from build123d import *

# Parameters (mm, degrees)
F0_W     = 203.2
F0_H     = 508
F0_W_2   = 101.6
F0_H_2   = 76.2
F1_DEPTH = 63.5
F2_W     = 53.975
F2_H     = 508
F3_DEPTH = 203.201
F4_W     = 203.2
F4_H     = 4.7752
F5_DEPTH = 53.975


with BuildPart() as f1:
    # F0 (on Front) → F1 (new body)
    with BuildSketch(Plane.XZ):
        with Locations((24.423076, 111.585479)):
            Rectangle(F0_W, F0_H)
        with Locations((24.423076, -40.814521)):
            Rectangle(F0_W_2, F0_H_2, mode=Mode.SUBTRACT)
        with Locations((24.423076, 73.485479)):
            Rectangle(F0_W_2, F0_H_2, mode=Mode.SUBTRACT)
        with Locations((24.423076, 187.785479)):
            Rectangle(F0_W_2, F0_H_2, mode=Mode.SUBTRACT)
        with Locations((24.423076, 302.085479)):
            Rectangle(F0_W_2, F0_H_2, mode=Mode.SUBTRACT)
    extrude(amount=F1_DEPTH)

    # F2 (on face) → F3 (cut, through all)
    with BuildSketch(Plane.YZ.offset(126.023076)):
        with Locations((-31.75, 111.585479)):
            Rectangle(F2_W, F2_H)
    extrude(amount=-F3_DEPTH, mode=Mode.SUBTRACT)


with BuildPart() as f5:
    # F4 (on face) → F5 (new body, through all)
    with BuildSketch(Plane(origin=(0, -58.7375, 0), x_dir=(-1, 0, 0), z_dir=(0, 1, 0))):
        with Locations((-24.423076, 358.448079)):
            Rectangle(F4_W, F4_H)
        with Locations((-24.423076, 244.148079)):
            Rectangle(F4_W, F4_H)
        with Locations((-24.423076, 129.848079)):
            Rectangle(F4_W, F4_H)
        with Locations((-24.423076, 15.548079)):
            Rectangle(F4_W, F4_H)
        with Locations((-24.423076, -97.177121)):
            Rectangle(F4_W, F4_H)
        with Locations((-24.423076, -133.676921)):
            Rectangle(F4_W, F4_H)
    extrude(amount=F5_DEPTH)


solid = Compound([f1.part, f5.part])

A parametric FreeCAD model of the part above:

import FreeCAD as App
import Part
import Sketcher

V = App.Vector
Q = App.Units.Quantity

doc = App.newDocument("Part")
body = doc.addObject("PartDesign::Body", "Body")
body.AllowCompound = True

# Sketch on XZ plane
sketch1 = doc.addObject("Sketcher::SketchObject", "Sketch")
body.addObject(sketch1)
sketch1.AttachmentSupport = (doc.XZ_Plane, [""])
sketch1.MapMode = "FlatFace"
sketch1.addGeometry([
    Part.LineSegment(V(-77.176924, 365.585479, 0), V(-77.176924, -142.414521, 0)),  # 0
    Part.LineSegment(V(-77.176924, -142.414521, 0), V(126.023076, -142.414521, 0)),  # 1
    Part.LineSegment(V(126.023076, -142.414521, 0), V(126.023076, 365.585479, 0)),  # 2
    Part.LineSegment(V(126.023076, 365.585479, 0), V(-77.176924, 365.585479, 0)),  # 3
    Part.LineSegment(V(75.223076, -78.914521, 0), V(-26.376924, -78.914521, 0)),  # 4
    Part.LineSegment(V(-26.376924, -78.914521, 0), V(-26.376924, -2.714521, 0)),  # 5
    Part.LineSegment(V(-26.376924, -2.714521, 0), V(75.223076, -2.714521, 0)),  # 6
    Part.LineSegment(V(75.223076, -2.714521, 0), V(75.223076, -78.914521, 0)),  # 7
    Part.LineSegment(V(75.223076, 35.385479, 0), V(-26.376924, 35.385479, 0)),  # 8
    Part.LineSegment(V(-26.376924, 35.385479, 0), V(-26.376924, 111.585479, 0)),  # 9
    Part.LineSegment(V(-26.376924, 111.585479, 0), V(75.223076, 111.585479, 0)),  # 10
    Part.LineSegment(V(75.223076, 111.585479, 0), V(75.223076, 35.385479, 0)),  # 11
    Part.LineSegment(V(75.223076, 149.685479, 0), V(-26.376924, 149.685479, 0)),  # 12
    Part.LineSegment(V(-26.376924, 149.685479, 0), V(-26.376924, 225.885479, 0)),  # 13
    Part.LineSegment(V(-26.376924, 225.885479, 0), V(75.223076, 225.885479, 0)),  # 14
    Part.LineSegment(V(75.223076, 225.885479, 0), V(75.223076, 149.685479, 0)),  # 15
    Part.LineSegment(V(75.223076, 263.985479, 0), V(-26.376924, 263.985479, 0)),  # 16
    Part.LineSegment(V(-26.376924, 263.985479, 0), V(-26.376924, 340.185479, 0)),  # 17
    Part.LineSegment(V(-26.376924, 340.185479, 0), V(75.223076, 340.185479, 0)),  # 18
    Part.LineSegment(V(75.223076, 340.185479, 0), V(75.223076, 263.985479, 0)),  # 19
], False)
sketch1.addConstraint([
    Sketcher.Constraint("Coincident", 0, 2, 1, 1),
    Sketcher.Constraint("Coincident", 1, 2, 2, 1),
    Sketcher.Constraint("Coincident", 2, 2, 3, 1),
    Sketcher.Constraint("Coincident", 3, 2, 0, 1),
    Sketcher.Constraint("Coincident", 4, 2, 5, 1),
    Sketcher.Constraint("Coincident", 5, 2, 6, 1),
    Sketcher.Constraint("Coincident", 6, 2, 7, 1),
    Sketcher.Constraint("Coincident", 7, 2, 4, 1),
    Sketcher.Constraint("Coincident", 8, 2, 9, 1),
    Sketcher.Constraint("Coincident", 9, 2, 10, 1),
    Sketcher.Constraint("Coincident", 10, 2, 11, 1),
    Sketcher.Constraint("Coincident", 11, 2, 8, 1),
    Sketcher.Constraint("Coincident", 12, 2, 13, 1),
    Sketcher.Constraint("Coincident", 13, 2, 14, 1),
    Sketcher.Constraint("Coincident", 14, 2, 15, 1),
    Sketcher.Constraint("Coincident", 15, 2, 12, 1),
    Sketcher.Constraint("Coincident", 16, 2, 17, 1),
    Sketcher.Constraint("Coincident", 17, 2, 18, 1),
    Sketcher.Constraint("Coincident", 18, 2, 19, 1),
    Sketcher.Constraint("Coincident", 19, 2, 16, 1),
    Sketcher.Constraint("Vertical", 0),
    Sketcher.Constraint("Horizontal", 1),
    Sketcher.Constraint("Vertical", 2),
    Sketcher.Constraint("Horizontal", 3),
    Sketcher.Constraint("Horizontal", 4),
    Sketcher.Constraint("Vertical", 5),
    Sketcher.Constraint("Horizontal", 6),
    Sketcher.Constraint("Vertical", 7),
    Sketcher.Constraint("Horizontal", 8),
    Sketcher.Constraint("Vertical", 9),
    Sketcher.Constraint("Horizontal", 10),
    Sketcher.Constraint("Vertical", 11),
    Sketcher.Constraint("Horizontal", 12),
    Sketcher.Constraint("Vertical", 13),
    Sketcher.Constraint("Horizontal", 14),
    Sketcher.Constraint("Vertical", 15),
    Sketcher.Constraint("Horizontal", 16),
    Sketcher.Constraint("Vertical", 17),
    Sketcher.Constraint("Horizontal", 18),
    Sketcher.Constraint("Vertical", 19),
    Sketcher.Constraint("Vertical", 5, 2, 8, 2),
    Sketcher.Constraint("Vertical", 7, 2, 10, 2),
    Sketcher.Constraint("Vertical", 9, 2, 12, 2),
    Sketcher.Constraint("Vertical", 11, 2, 14, 2),
    Sketcher.Constraint("Vertical", 13, 2, 16, 2),
    Sketcher.Constraint("Vertical", 15, 2, 18, 2),
    Sketcher.Constraint("Equal", 7, 9),
    Sketcher.Constraint("Equal", 11, 13),
    Sketcher.Constraint("Equal", 15, 17),
    Sketcher.Constraint("DistanceX", 1, 1, 1, 2, Q("8 in")),
    Sketcher.Constraint("DistanceX", 4, 2, 4, 1, Q("4 in")),
    Sketcher.Constraint("DistanceY", 0, 2, 0, 1, Q("20 in")),
    Sketcher.Constraint("DistanceY", 5, 1, 5, 2, Q("3 in")),
    Sketcher.Constraint("DistanceX", 0, 2, 4, 2, Q("2 in")),
    Sketcher.Constraint("DistanceY", 0, 2, 8, 2, Q("7 in")),
    Sketcher.Constraint("DistanceY", 5, 2, 12, 2, Q("6 in")),
    Sketcher.Constraint("DistanceY", 16, 2, 3, 2, Q("4 in")),
    Sketcher.Constraint("DistanceY", 0, 2, 4, 2, Q("2.5 in")),
    Sketcher.Constraint("DistanceY", 0, 2, -1, 1, Q("142.414521 mm")),
    Sketcher.Constraint("DistanceX", 0, 2, -1, 1, Q("77.176924 mm")),
])
pad1 = doc.addObject("PartDesign::Pad", "Pad")
body.addObject(pad1)
pad1.Profile = sketch1
pad1.Length = Q("2.5 in")

# Sketch on YZ plane
sketch2 = doc.addObject("Sketcher::SketchObject", "Sketch001")
body.addObject(sketch2)
sketch2.AttachmentSupport = (doc.YZ_Plane, [""])
sketch2.MapMode = "FlatFace"
sketch2.AttachmentOffset = App.Placement(V(0, 0, 126.023076), App.Rotation())
sketch2.addGeometry([
    Part.LineSegment(V(-58.7375, 365.585479, 0), V(-58.7375, -142.414521, 0)),
    Part.LineSegment(V(-58.7375, -142.414521, 0), V(-4.7625, -142.414521, 0)),
    Part.LineSegment(V(-4.7625, -142.414521, 0), V(-4.7625, 365.585479, 0)),
    Part.LineSegment(V(-4.7625, 365.585479, 0), V(-58.7375, 365.585479, 0)),
], False)
sketch2.addConstraint([
    Sketcher.Constraint("Coincident", 0, 2, 1, 1),
    Sketcher.Constraint("Coincident", 1, 2, 2, 1),
    Sketcher.Constraint("Coincident", 2, 2, 3, 1),
    Sketcher.Constraint("Coincident", 3, 2, 0, 1),
    Sketcher.Constraint("Vertical", 0),
    Sketcher.Constraint("Horizontal", 1),
    Sketcher.Constraint("Vertical", 2),
    Sketcher.Constraint("Horizontal", 3),
    Sketcher.Constraint("DistanceY", 0, 2, 0, 1, Q("20 in")),
    Sketcher.Constraint("DistanceX", 1, 1, 1, 2, Q("2.125 in")),
    Sketcher.Constraint("DistanceX", 0, 2, -1, 1, Q("2.3125 in")),
    Sketcher.Constraint("DistanceY", 0, 2, -1, 1, Q("142.414521 mm")),
])
pocket1 = doc.addObject("PartDesign::Pocket", "Pocket")
body.addObject(pocket1)
pocket1.Profile = sketch2
pocket1.Type = "ThroughAll"
body2 = doc.addObject("PartDesign::Body", "Body001")
body2.AllowCompound = True

# Sketch on XZ plane
sketch3 = doc.addObject("Sketcher::SketchObject", "Sketch002")
body2.addObject(sketch3)
sketch3.AttachmentSupport = (doc.getObject("XZ_Plane001"), [""])
sketch3.MapMode = "FlatFace"
sketch3.AttachmentOffset = App.Placement(V(0, 0, 2.3125 * 25.4), App.Rotation())
sketch3.addGeometry([
    Part.LineSegment(V(126.023076, 360.835679, 0), V(126.023076, 356.060479, 0)),  # 0
    Part.LineSegment(V(126.023076, 356.060479, 0), V(-77.176924, 356.060479, 0)),  # 1
    Part.LineSegment(V(-77.176924, 356.060479, 0), V(-77.176924, 360.835679, 0)),  # 2
    Part.LineSegment(V(-77.176924, 360.835679, 0), V(126.023076, 360.835679, 0)),  # 3
    Part.LineSegment(V(126.023076, 246.535679, 0), V(126.023076, 241.760479, 0)),  # 4
    Part.LineSegment(V(126.023076, 241.760479, 0), V(-77.176924, 241.760479, 0)),  # 5
    Part.LineSegment(V(-77.176924, 241.760479, 0), V(-77.176924, 246.535679, 0)),  # 6
    Part.LineSegment(V(-77.176924, 246.535679, 0), V(126.023076, 246.535679, 0)),  # 7
    Part.LineSegment(V(126.023076, 132.235679, 0), V(126.023076, 127.460479, 0)),  # 8
    Part.LineSegment(V(126.023076, 127.460479, 0), V(-77.176924, 127.460479, 0)),  # 9
    Part.LineSegment(V(-77.176924, 127.460479, 0), V(-77.176924, 132.235679, 0)),  # 10
    Part.LineSegment(V(-77.176924, 132.235679, 0), V(126.023076, 132.235679, 0)),  # 11
    Part.LineSegment(V(126.023076, 17.935679, 0), V(126.023076, 13.160479, 0)),  # 12
    Part.LineSegment(V(126.023076, 13.160479, 0), V(-77.176924, 13.160479, 0)),  # 13
    Part.LineSegment(V(-77.176924, 13.160479, 0), V(-77.176924, 17.935679, 0)),  # 14
    Part.LineSegment(V(-77.176924, 17.935679, 0), V(126.023076, 17.935679, 0)),  # 15
    Part.LineSegment(V(126.023076, -94.789521, 0), V(126.023076, -99.564721, 0)),  # 16
    Part.LineSegment(V(126.023076, -99.564721, 0), V(-77.176924, -99.564721, 0)),  # 17
    Part.LineSegment(V(-77.176924, -99.564721, 0), V(-77.176924, -94.789521, 0)),  # 18
    Part.LineSegment(V(-77.176924, -94.789521, 0), V(126.023076, -94.789521, 0)),  # 19
    Part.LineSegment(V(126.023076, -131.289321, 0), V(126.023076, -136.064521, 0)),  # 20
    Part.LineSegment(V(126.023076, -136.064521, 0), V(-77.176924, -136.064521, 0)),  # 21
    Part.LineSegment(V(-77.176924, -136.064521, 0), V(-77.176924, -131.289321, 0)),  # 22
    Part.LineSegment(V(-77.176924, -131.289321, 0), V(126.023076, -131.289321, 0)),  # 23
], False)
sketch3.addConstraint([
    Sketcher.Constraint("Coincident", 0, 2, 1, 1),
    Sketcher.Constraint("Coincident", 1, 2, 2, 1),
    Sketcher.Constraint("Coincident", 2, 2, 3, 1),
    Sketcher.Constraint("Coincident", 3, 2, 0, 1),
    Sketcher.Constraint("Coincident", 4, 2, 5, 1),
    Sketcher.Constraint("Coincident", 5, 2, 6, 1),
    Sketcher.Constraint("Coincident", 6, 2, 7, 1),
    Sketcher.Constraint("Coincident", 7, 2, 4, 1),
    Sketcher.Constraint("Coincident", 8, 2, 9, 1),
    Sketcher.Constraint("Coincident", 9, 2, 10, 1),
    Sketcher.Constraint("Coincident", 10, 2, 11, 1),
    Sketcher.Constraint("Coincident", 11, 2, 8, 1),
    Sketcher.Constraint("Coincident", 12, 2, 13, 1),
    Sketcher.Constraint("Coincident", 13, 2, 14, 1),
    Sketcher.Constraint("Coincident", 14, 2, 15, 1),
    Sketcher.Constraint("Coincident", 15, 2, 12, 1),
    Sketcher.Constraint("Coincident", 16, 2, 17, 1),
    Sketcher.Constraint("Coincident", 17, 2, 18, 1),
    Sketcher.Constraint("Coincident", 18, 2, 19, 1),
    Sketcher.Constraint("Coincident", 19, 2, 16, 1),
    Sketcher.Constraint("Coincident", 20, 2, 21, 1),
    Sketcher.Constraint("Coincident", 21, 2, 22, 1),
    Sketcher.Constraint("Coincident", 22, 2, 23, 1),
    Sketcher.Constraint("Coincident", 23, 2, 20, 1),
    Sketcher.Constraint("Vertical", 0),
    Sketcher.Constraint("Horizontal", 1),
    Sketcher.Constraint("Vertical", 2),
    Sketcher.Constraint("Horizontal", 3),
    Sketcher.Constraint("Vertical", 4),
    Sketcher.Constraint("Horizontal", 5),
    Sketcher.Constraint("Vertical", 6),
    Sketcher.Constraint("Horizontal", 7),
    Sketcher.Constraint("Vertical", 8),
    Sketcher.Constraint("Horizontal", 9),
    Sketcher.Constraint("Vertical", 10),
    Sketcher.Constraint("Horizontal", 11),
    Sketcher.Constraint("Vertical", 12),
    Sketcher.Constraint("Horizontal", 13),
    Sketcher.Constraint("Vertical", 14),
    Sketcher.Constraint("Horizontal", 15),
    Sketcher.Constraint("Vertical", 16),
    Sketcher.Constraint("Horizontal", 17),
    Sketcher.Constraint("Vertical", 18),
    Sketcher.Constraint("Horizontal", 19),
    Sketcher.Constraint("Vertical", 20),
    Sketcher.Constraint("Horizontal", 21),
    Sketcher.Constraint("Vertical", 22),
    Sketcher.Constraint("Horizontal", 23),
    Sketcher.Constraint("Vertical", 3, 2, 4, 2),
    Sketcher.Constraint("Vertical", 2, 2, 5, 2),
    Sketcher.Constraint("Vertical", 7, 2, 8, 2),
    Sketcher.Constraint("Vertical", 6, 2, 9, 2),
    Sketcher.Constraint("Vertical", 11, 2, 12, 2),
    Sketcher.Constraint("Vertical", 10, 2, 13, 2),
    Sketcher.Constraint("Vertical", 15, 2, 16, 2),
    Sketcher.Constraint("Vertical", 14, 2, 17, 2),
    Sketcher.Constraint("Vertical", 19, 2, 20, 2),
    Sketcher.Constraint("Vertical", 18, 2, 21, 2),
    Sketcher.Constraint("Equal", 2, 4),
    Sketcher.Constraint("Equal", 6, 8),
    Sketcher.Constraint("Equal", 10, 12),
    Sketcher.Constraint("Equal", 14, 16),
    Sketcher.Constraint("Equal", 18, 20),
    Sketcher.Constraint("DistanceX", 1, 2, 1, 1, Q("8 in")),
    Sketcher.Constraint("DistanceY", 8, 2, 0, 2, Q("9 in")),
    Sketcher.Constraint("DistanceY", 12, 2, 4, 2, Q("9 in")),
    Sketcher.Constraint("DistanceY", 4, 2, 0, 2, Q("4.5 in")),
    Sketcher.Constraint("DistanceY", 0, 2, 0, 1, Q("0.188 in")),
    Sketcher.Constraint("DistanceY", 18, 2, 13, 2, Q("4.25 in")),
    Sketcher.Constraint("DistanceY", 20, 2, 16, 2, Q("1.437 in")),
    Sketcher.Constraint("DistanceY", -1, 1, 0, 2, Q("356.060479 mm")),
    Sketcher.Constraint("DistanceX", -1, 1, 0, 2, Q("126.023076 mm")),
])
pad2 = doc.addObject("PartDesign::Pad", "Pad001")
body2.addObject(pad2)
pad2.Profile = sketch3
pad2.Length = Q("2.125 in")
pad2.Reversed = True

doc.recompute()
